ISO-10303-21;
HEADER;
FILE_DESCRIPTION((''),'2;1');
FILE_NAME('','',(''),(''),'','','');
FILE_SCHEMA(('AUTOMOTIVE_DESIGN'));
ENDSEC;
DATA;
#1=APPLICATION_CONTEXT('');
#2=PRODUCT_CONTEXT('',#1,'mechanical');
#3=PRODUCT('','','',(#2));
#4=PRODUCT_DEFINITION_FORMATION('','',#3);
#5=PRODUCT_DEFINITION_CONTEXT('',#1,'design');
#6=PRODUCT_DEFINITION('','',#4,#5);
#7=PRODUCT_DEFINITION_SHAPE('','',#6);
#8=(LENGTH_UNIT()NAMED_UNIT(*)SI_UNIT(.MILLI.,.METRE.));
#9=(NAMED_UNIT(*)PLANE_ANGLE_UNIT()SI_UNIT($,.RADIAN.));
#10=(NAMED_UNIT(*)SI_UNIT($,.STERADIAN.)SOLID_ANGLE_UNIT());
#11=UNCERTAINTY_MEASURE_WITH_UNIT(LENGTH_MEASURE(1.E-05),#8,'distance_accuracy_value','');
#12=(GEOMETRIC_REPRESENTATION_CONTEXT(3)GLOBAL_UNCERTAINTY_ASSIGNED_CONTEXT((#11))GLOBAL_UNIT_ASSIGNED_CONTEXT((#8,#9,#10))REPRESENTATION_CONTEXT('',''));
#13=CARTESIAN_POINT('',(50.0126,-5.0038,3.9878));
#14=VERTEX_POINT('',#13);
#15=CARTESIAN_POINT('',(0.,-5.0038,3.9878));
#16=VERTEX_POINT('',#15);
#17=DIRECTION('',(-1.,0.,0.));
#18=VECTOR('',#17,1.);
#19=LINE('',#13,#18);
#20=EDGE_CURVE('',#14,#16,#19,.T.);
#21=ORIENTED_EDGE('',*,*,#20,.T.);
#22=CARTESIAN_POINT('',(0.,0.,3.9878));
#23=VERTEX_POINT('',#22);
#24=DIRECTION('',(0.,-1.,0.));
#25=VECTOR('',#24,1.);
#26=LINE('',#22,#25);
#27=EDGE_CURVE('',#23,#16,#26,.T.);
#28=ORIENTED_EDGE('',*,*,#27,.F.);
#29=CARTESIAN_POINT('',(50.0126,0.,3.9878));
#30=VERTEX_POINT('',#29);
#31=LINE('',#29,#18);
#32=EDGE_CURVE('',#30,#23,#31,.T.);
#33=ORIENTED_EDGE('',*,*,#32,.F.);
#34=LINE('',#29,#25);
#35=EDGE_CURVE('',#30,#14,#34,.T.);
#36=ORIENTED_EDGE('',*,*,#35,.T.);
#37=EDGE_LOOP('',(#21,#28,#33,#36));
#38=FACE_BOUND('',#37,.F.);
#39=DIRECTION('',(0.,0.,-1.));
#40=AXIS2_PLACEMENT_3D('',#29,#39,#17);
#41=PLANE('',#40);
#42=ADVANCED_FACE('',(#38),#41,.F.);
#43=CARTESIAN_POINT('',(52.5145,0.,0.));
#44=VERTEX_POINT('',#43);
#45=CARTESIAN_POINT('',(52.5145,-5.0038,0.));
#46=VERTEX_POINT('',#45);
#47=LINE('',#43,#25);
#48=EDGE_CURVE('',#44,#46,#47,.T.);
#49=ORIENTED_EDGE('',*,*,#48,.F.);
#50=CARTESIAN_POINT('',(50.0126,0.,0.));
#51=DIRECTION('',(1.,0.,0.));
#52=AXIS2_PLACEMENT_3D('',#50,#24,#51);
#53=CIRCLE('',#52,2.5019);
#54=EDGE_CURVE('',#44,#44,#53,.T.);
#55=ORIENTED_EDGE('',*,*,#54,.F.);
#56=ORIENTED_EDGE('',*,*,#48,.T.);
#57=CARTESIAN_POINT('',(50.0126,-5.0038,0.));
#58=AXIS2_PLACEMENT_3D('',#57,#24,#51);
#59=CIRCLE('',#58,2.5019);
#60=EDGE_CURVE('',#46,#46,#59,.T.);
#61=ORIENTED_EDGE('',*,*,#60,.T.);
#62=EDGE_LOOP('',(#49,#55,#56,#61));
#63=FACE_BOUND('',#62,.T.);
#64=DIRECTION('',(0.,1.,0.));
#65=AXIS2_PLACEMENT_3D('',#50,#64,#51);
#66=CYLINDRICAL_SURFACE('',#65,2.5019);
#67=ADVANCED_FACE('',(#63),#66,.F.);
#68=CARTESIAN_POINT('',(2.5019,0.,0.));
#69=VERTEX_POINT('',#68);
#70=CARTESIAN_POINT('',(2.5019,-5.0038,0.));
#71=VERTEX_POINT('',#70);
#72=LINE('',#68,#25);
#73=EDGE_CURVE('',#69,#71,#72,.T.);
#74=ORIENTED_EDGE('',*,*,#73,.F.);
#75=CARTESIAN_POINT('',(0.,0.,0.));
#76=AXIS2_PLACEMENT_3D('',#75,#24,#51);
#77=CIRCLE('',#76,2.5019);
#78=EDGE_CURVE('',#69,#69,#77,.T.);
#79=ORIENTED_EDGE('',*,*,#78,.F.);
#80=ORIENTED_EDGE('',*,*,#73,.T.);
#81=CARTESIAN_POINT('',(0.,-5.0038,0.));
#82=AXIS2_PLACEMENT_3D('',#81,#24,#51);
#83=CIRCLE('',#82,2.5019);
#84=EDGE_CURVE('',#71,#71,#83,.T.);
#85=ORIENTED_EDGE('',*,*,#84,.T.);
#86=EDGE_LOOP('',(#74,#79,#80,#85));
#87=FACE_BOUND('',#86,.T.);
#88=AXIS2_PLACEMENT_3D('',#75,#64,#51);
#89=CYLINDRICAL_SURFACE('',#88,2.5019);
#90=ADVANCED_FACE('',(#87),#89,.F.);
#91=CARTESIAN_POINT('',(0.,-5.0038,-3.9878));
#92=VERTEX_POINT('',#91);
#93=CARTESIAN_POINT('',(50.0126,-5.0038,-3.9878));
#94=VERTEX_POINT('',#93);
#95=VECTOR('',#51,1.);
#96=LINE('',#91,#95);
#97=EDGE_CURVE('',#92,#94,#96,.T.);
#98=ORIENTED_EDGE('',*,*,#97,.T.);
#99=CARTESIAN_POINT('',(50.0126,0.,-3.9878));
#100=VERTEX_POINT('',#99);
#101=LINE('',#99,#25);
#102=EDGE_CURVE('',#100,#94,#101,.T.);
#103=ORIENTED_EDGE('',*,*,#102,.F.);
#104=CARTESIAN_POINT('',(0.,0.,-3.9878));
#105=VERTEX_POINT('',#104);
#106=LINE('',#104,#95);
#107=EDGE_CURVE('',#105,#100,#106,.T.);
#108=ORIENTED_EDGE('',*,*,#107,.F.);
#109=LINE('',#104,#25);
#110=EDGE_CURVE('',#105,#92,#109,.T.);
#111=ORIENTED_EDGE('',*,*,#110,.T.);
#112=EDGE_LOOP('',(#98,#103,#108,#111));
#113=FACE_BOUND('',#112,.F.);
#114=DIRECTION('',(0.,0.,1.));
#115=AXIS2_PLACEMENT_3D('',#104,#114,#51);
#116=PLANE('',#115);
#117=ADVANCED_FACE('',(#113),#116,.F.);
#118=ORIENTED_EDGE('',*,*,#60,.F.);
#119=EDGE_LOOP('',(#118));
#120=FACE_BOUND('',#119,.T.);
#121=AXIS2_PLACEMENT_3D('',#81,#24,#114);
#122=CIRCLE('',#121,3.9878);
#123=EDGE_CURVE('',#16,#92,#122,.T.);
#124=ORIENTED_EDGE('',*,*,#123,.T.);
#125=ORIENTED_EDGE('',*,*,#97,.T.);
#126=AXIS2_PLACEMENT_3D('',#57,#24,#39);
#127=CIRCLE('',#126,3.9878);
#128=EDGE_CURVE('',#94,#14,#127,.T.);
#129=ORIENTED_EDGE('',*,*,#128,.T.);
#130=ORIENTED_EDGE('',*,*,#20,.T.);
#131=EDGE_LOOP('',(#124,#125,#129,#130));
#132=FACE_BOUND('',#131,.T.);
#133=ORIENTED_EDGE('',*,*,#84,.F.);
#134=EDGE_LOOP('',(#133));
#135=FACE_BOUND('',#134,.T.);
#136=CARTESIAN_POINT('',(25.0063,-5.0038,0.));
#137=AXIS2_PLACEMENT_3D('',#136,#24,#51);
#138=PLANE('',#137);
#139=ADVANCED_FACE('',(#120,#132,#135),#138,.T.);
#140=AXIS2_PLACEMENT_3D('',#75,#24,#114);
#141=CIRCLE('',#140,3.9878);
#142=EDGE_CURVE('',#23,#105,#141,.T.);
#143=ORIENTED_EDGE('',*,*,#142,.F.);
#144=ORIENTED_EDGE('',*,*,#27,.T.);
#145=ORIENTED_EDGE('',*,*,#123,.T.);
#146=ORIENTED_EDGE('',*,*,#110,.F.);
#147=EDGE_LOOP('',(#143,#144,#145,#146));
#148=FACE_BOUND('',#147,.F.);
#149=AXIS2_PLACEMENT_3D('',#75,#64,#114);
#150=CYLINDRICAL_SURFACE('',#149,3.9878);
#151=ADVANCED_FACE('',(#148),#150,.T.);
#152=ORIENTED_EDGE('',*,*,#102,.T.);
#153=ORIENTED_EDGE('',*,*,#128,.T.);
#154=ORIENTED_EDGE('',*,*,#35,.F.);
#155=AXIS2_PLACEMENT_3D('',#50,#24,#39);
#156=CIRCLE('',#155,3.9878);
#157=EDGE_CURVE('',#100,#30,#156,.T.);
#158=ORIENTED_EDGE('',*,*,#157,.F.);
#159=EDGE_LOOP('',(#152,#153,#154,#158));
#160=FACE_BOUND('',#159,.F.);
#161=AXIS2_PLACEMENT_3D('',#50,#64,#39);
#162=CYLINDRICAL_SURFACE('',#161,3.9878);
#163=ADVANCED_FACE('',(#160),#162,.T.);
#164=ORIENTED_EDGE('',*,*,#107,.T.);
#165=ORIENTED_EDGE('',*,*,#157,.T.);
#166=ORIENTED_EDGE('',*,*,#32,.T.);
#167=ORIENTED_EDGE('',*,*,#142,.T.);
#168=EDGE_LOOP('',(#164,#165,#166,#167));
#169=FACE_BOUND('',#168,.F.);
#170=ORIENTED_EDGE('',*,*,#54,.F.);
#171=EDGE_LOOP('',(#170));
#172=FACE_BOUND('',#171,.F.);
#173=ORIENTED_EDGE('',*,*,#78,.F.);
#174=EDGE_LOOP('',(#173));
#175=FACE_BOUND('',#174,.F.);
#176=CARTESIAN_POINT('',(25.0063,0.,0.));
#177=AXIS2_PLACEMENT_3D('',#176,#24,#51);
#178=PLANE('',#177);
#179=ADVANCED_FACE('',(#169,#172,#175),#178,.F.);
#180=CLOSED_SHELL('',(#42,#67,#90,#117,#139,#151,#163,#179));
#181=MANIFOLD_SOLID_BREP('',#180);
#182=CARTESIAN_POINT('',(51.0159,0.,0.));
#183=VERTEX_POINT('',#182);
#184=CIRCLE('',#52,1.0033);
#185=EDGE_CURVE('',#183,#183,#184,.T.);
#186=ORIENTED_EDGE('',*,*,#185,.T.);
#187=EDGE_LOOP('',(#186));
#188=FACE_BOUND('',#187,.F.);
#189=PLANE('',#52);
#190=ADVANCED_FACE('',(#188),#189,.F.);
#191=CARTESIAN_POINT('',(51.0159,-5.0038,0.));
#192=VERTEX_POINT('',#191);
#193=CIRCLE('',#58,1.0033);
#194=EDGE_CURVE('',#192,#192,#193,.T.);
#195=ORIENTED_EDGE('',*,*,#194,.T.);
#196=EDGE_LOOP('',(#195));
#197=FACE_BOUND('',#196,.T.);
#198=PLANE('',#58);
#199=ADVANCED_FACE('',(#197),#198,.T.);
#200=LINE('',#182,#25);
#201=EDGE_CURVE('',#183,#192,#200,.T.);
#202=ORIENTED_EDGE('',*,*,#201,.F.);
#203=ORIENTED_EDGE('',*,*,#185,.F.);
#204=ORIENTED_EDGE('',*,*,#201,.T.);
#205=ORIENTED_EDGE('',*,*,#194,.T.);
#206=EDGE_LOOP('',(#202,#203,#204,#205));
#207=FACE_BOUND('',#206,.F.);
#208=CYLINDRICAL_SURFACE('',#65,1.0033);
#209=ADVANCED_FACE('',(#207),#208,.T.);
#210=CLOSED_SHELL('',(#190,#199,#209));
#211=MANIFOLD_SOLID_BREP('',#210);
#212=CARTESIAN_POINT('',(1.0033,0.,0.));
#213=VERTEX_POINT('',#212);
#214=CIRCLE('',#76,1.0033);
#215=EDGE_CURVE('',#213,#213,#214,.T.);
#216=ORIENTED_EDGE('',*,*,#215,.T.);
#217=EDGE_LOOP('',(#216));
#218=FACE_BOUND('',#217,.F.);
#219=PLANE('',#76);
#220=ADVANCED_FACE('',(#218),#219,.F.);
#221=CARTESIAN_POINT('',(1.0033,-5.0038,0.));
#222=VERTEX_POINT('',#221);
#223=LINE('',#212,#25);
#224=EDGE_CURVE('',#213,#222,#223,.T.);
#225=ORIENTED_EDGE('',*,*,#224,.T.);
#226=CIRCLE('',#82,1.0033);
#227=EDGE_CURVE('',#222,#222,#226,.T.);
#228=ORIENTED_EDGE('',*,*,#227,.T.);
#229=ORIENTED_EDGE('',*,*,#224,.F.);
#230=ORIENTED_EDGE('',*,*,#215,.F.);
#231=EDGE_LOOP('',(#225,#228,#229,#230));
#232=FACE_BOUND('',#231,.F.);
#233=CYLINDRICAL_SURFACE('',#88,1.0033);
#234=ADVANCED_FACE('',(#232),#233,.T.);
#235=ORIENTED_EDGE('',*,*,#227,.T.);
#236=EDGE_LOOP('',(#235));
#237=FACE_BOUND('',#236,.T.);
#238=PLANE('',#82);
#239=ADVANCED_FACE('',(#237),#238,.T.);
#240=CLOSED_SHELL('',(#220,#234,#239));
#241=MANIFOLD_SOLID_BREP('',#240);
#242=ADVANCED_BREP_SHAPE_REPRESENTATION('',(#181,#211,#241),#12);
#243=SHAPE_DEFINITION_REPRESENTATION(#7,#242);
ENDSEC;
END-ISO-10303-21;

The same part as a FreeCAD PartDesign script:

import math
import FreeCAD as App
import Part
import Sketcher
Q = App.Units.Quantity

doc = App.newDocument("Part")
body = doc.addObject("PartDesign::Body", "Body")
body.AllowCompound = True

# Sketch on XZ plane
sketch1 = doc.addObject("Sketcher::SketchObject", "Sketch")
body.addObject(sketch1)
sketch1.AttachmentSupport = (doc.XZ_Plane, [""])
sketch1.MapMode = "FlatFace"
sketch1.addGeometry(Part.ArcOfCircle(Part.Circle(App.Vector(0, 0, 0), App.Vector(0, 0, 1), 4), math.radians(90), math.radians(270)), False)
sketch1.addGeometry(Part.LineSegment(App.Vector(0, -4, 0), App.Vector(50, -4, 0)), False)
sketch1.addGeometry(Part.ArcOfCircle(Part.Circle(App.Vector(50, 0, 0), App.Vector(0, 0, 1), 4), math.radians(-90), math.radians(90)), False)
sketch1.addGeometry(Part.LineSegment(App.Vector(50, 4, 0), App.Vector(0, 4, 0)), False)
sketch1.addGeometry(Part.Circle(App.Vector(0, 0, 0), App.Vector(0, 0, 1), 2.5), False)
sketch1.addGeometry(Part.Circle(App.Vector(50, 0, 0), App.Vector(0, 0, 1), 2.5), False)
sketch1.addGeometry(Part.Circle(App.Vector(0, 0, 0), App.Vector(0, 0, 1), 1), False)
sketch1.addGeometry(Part.Circle(App.Vector(50, 0, 0), App.Vector(0, 0, 1), 1), False)
sketch1.addConstraint(Sketcher.Constraint("Tangent", 0, 2, 1, 1))
sketch1.addConstraint(Sketcher.Constraint("Tangent", 1, 2, 2, 1))
sketch1.addConstraint(Sketcher.Constraint("Tangent", 2, 2, 3, 1))
sketch1.addConstraint(Sketcher.Constraint("Tangent", 3, 2, 0, 1))
sketch1.addConstraint(Sketcher.Constraint("Horizontal", 1))
sketch1.addConstraint(Sketcher.Constraint("Horizontal", 3))
sketch1.addConstraint(Sketcher.Constraint("Coincident", 0, 3, -1, 1))
sketch1.addConstraint(Sketcher.Constraint("Coincident", 4, 3, -1, 1))
sketch1.addConstraint(Sketcher.Constraint("Coincident", 6, 3, -1, 1))
sketch1.addConstraint(Sketcher.Constraint("Coincident", 5, 3, 2, 3))
sketch1.addConstraint(Sketcher.Constraint("Coincident", 7, 3, 2, 3))
sketch1.addConstraint(Sketcher.Constraint("Equal", 4, 5))
sketch1.addConstraint(Sketcher.Constraint("Equal", 6, 7))
sketch1.addConstraint(Sketcher.Constraint("Diameter", 4, Q("0.197 in")))
sketch1.addConstraint(Sketcher.Constraint("Diameter", 6, Q("0.079 in")))
sketch1.addConstraint(Sketcher.Constraint("Radius", 0, Q("0.157 in")))
sketch1.addConstraint(Sketcher.Constraint("DistanceX", 1, 1, 1, 2, Q("1.969 in")))
pad1 = doc.addObject("PartDesign::Pad", "Pad")
body.addObject(pad1)
pad1.Profile = sketch1
pad1.Length = Q("0.197 in")

doc.recompute()
